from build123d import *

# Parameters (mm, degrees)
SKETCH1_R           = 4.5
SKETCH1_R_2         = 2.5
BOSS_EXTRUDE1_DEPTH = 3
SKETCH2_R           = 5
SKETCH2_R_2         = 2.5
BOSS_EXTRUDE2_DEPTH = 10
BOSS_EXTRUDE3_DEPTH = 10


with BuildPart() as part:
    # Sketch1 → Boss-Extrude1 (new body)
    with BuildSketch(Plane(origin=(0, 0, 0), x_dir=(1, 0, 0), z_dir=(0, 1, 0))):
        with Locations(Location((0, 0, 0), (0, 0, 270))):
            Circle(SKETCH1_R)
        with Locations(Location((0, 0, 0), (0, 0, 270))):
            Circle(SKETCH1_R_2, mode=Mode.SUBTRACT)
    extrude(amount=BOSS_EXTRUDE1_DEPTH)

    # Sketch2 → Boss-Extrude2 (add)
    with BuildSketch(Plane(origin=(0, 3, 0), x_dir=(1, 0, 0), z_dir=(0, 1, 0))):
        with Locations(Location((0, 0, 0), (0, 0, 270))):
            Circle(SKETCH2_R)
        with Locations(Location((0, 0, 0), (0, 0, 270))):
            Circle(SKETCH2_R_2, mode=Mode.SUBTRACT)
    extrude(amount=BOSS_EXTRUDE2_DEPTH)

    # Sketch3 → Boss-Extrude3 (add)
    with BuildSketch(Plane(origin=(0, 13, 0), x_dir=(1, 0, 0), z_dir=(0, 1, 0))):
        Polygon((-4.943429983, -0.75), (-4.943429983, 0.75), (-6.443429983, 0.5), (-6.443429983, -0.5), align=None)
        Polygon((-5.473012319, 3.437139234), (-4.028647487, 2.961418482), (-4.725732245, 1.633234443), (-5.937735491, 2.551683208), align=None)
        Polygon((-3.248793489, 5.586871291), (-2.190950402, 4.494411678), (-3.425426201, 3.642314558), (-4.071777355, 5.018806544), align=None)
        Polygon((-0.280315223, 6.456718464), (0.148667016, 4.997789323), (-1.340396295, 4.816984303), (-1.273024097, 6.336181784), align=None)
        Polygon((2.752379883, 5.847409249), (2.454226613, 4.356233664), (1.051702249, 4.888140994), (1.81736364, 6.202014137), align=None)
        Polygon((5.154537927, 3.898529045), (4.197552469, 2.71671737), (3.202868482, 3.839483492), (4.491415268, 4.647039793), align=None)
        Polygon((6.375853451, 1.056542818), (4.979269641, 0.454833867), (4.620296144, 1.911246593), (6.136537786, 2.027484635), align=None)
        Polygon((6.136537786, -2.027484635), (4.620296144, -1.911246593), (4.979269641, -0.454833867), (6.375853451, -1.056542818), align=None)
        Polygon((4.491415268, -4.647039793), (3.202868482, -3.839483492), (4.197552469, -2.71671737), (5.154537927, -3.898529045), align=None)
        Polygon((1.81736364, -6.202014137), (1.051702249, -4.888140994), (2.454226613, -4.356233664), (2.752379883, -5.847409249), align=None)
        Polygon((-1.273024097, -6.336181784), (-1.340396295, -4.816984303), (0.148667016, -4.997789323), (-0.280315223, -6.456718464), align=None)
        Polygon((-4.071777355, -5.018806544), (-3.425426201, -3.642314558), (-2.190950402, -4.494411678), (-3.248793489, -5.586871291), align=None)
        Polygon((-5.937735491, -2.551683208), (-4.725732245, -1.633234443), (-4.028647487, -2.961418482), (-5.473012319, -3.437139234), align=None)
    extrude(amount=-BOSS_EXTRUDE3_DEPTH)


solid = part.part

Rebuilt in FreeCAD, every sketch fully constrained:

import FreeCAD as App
import Part
import Sketcher
from FreeCAD import Vector
Q = App.Units.Quantity


def add_polygon(sketch, points):
    """Adds a closed chain of lines whose ends are joined by coincident constraints."""
    first, n = sketch.GeometryCount, len(points)
    for a, b in zip(points, points[1:] + points[:1]):
        sketch.addGeometry(Part.LineSegment(App.Vector(*a, 0), App.Vector(*b, 0)), False)
    for i in range(n):
        sketch.addConstraint(Sketcher.Constraint("Coincident", first + i, 2, first + (i + 1) % n, 1))

doc = App.newDocument("Part")
params = doc.addObject("Spreadsheet::Sheet", "Params")
for row, (alias, value) in enumerate([
    ("sketch1_diameter", "9 mm"),
    ("sketch1_diameter2", "5 mm"),
    ("pad1_length", "3 mm"),
    ("sketch2_diameter", "10 mm"),
    ("sketch2_diameter2", "5 mm"),
    ("pad2_length", "10 mm"),
    ("sketch3_height", "1 mm"),
    ("sketch3_length", "1 mm"),
    ("sketch3_height2", "1.5 mm"),
    ("sketch3_length2", "1.5 mm"),
    ("pad3_length", "10 mm"),
], start=1):
    params.set(f"A{row}", alias)
    params.set(f"B{row}", "=" + value)
    params.setAlias(f"B{row}", alias)

body = doc.addObject("PartDesign::Body", "Body")

# Sketch on XZ plane
sketch1 = body.newObject("Sketcher::SketchObject", "Sketch")
sketch1.AttachmentSupport = (doc.getObject("XZ_Plane"), [""])
sketch1.MapMode = "FlatFace"
sketch1.addGeometry(Part.Circle(Vector(0, 0, 0), Vector(0, 0, 1), 4.5), False)
sketch1.addGeometry(Part.Circle(Vector(0, 0, 0), Vector(0, 0, 1), 2.5), False)
sketch1.addConstraint(Sketcher.Constraint("Coincident", 0, 3, -1, 1))
sketch1.addConstraint(Sketcher.Constraint("Coincident", 1, 3, -1, 1))
sketch1.addConstraint(Sketcher.Constraint("Diameter", 0, 9.0))
sketch1.addConstraint(Sketcher.Constraint("Diameter", 1, 5.0))
sketch1.setExpression("Constraints[2]", "Params.sketch1_diameter")
sketch1.setExpression("Constraints[3]", "Params.sketch1_diameter2")
pad1 = body.newObject("PartDesign::Pad", "Pad")
pad1.Profile = sketch1
pad1.setExpression("Length", "Params.pad1_length")
pad1.Reversed = True

# Sketch on XZ plane
sketch2 = body.newObject("Sketcher::SketchObject", "Sketch001")
sketch2.AttachmentSupport = (doc.getObject("XZ_Plane"), [""])
sketch2.MapMode = "FlatFace"
sketch2.AttachmentOffset = App.Placement(Vector(0, 0, -3), App.Rotation())
sketch2.addGeometry(Part.Circle(Vector(0, 0, 0), Vector(0, 0, 1), 5), False)
sketch2.addGeometry(Part.Circle(Vector(0, 0, 0), Vector(0, 0, 1), 2.5), False)
sketch2.addConstraint(Sketcher.Constraint("Coincident", 0, 3, -1, 1))
sketch2.addConstraint(Sketcher.Constraint("Coincident", 1, 3, -1, 1))
sketch2.addConstraint(Sketcher.Constraint("Diameter", 0, 10.0))
sketch2.addConstraint(Sketcher.Constraint("Diameter", 1, 5.0))
sketch2.setExpression("Constraints[2]", "Params.sketch2_diameter")
sketch2.setExpression("Constraints[3]", "Params.sketch2_diameter2")
pad2 = body.newObject("PartDesign::Pad", "Pad001")
pad2.Profile = sketch2
pad2.setExpression("Length", "Params.pad2_length")
pad2.Reversed = True

# Sketch on XZ plane
sketch3 = body.newObject("Sketcher::SketchObject", "Sketch002")
sketch3.AttachmentSupport = (doc.getObject("XZ_Plane"), [""])
sketch3.MapMode = "FlatFace"
sketch3.AttachmentOffset = App.Placement(Vector(0, 0, -13), App.Rotation())
add_polygon(sketch3, [(-4.94343, 0.75), (-4.94343, -0.75), (-6.44343, -0.5), (-6.44343, 0.5)])  # lines 0-3
add_polygon(sketch3, [(-4.028647, -2.961418), (-5.473012, -3.437139), (-5.937735, -2.551683), (-4.725732, -1.633234)])  # lines 4-7
add_polygon(sketch3, [(-2.19095, -4.494412), (-3.248793, -5.586871), (-4.071777, -5.018807), (-3.425426, -3.642315)])  # lines 8-11
add_polygon(sketch3, [(0.148667, -4.997789), (-0.280315, -6.456718), (-1.273024, -6.336182), (-1.340396, -4.816984)])  # lines 12-15
add_polygon(sketch3, [(2.454227, -4.356234), (2.75238, -5.847409), (1.817364, -6.202014), (1.051702, -4.888141)])  # lines 16-19
add_polygon(sketch3, [(4.197552, -2.716717), (5.154538, -3.898529), (4.491415, -4.64704), (3.202868, -3.839483)])  # lines 20-23
add_polygon(sketch3, [(4.97927, -0.454834), (6.375853, -1.056543), (6.136538, -2.027485), (4.620296, -1.911247)])  # lines 24-27
add_polygon(sketch3, [(4.620296, 1.911247), (6.136538, 2.027485), (6.375853, 1.056543), (4.97927, 0.454834)])  # lines 28-31
add_polygon(sketch3, [(3.202868, 3.839483), (4.491415, 4.64704), (5.154538, 3.898529), (4.197552, 2.716717)])  # lines 32-35
add_polygon(sketch3, [(1.051702, 4.888141), (1.817364, 6.202014), (2.75238, 5.847409), (2.454227, 4.356234)])  # lines 36-39
add_polygon(sketch3, [(-1.340396, 4.816984), (-1.273024, 6.336182), (-0.280315, 6.456718), (0.148667, 4.997789)])  # lines 40-43
add_polygon(sketch3, [(-3.425426, 3.642315), (-4.071777, 5.018807), (-3.248793, 5.586871), (-2.19095, 4.494412)])  # lines 44-47
add_polygon(sketch3, [(-4.725732, 1.633234), (-5.937735, 2.551683), (-5.473012, 3.437139), (-4.028647, 2.961418)])  # lines 48-51
sketch3.addConstraint(Sketcher.Constraint("Vertical", 0))
sketch3.addConstraint(Sketcher.Constraint("Vertical", 2))
sketch3.addConstraint(Sketcher.Constraint("Symmetric", 25, 2, 28, 2, -1))
sketch3.addConstraint(Sketcher.Constraint("Symmetric", 24, 2, 29, 2, -1))
sketch3.addConstraint(Sketcher.Constraint("Symmetric", 27, 2, 30, 2, -1))
sketch3.addConstraint(Sketcher.Constraint("Symmetric", 26, 2, 31, 2, -1))
sketch3.addConstraint(Sketcher.Constraint("Symmetric", 21, 2, 32, 2, -1))
sketch3.addConstraint(Sketcher.Constraint("Symmetric", 20, 2, 33, 2, -1))
sketch3.addConstraint(Sketcher.Constraint("Symmetric", 23, 2, 34, 2, -1))
sketch3.addConstraint(Sketcher.Constraint("Symmetric", 22, 2, 35, 2, -1))
sketch3.addConstraint(Sketcher.Constraint("Symmetric", 17, 2, 36, 2, -1))
sketch3.addConstraint(Sketcher.Constraint("Symmetric", 16, 2, 37, 2, -1))
sketch3.addConstraint(Sketcher.Constraint("Symmetric", 19, 2, 38, 2, -1))
sketch3.addConstraint(Sketcher.Constraint("Symmetric", 18, 2, 39, 2, -1))
sketch3.addConstraint(Sketcher.Constraint("Symmetric", 13, 2, 40, 2, -1))
sketch3.addConstraint(Sketcher.Constraint("Symmetric", 12, 2, 41, 2, -1))
sketch3.addConstraint(Sketcher.Constraint("Symmetric", 15, 2, 42, 2, -1))
sketch3.addConstraint(Sketcher.Constraint("Symmetric", 14, 2, 43, 2, -1))
sketch3.addConstraint(Sketcher.Constraint("Symmetric", 9, 2, 44, 2, -1))
sketch3.addConstraint(Sketcher.Constraint("Symmetric", 8, 2, 45, 2, -1))
sketch3.addConstraint(Sketcher.Constraint("Symmetric", 11, 2, 46, 2, -1))
sketch3.addConstraint(Sketcher.Constraint("Symmetric", 10, 2, 47, 2, -1))
sketch3.addConstraint(Sketcher.Constraint("Symmetric", 5, 2, 48, 2, -1))
sketch3.addConstraint(Sketcher.Constraint("Symmetric", 4, 2, 49, 2, -1))
sketch3.addConstraint(Sketcher.Constraint("Symmetric", 7, 2, 50, 2, -1))
sketch3.addConstraint(Sketcher.Constraint("Symmetric", 6, 2, 51, 2, -1))
sketch3.addConstraint(Sketcher.Constraint("Parallel", 5, 7))
sketch3.addConstraint(Sketcher.Constraint("Parallel", 9, 11))
sketch3.addConstraint(Sketcher.Constraint("Parallel", 13, 15))
sketch3.addConstraint(Sketcher.Constraint("Parallel", 17, 19))
sketch3.addConstraint(Sketcher.Constraint("Parallel", 21, 23))
sketch3.addConstraint(Sketcher.Constraint("Parallel", 25, 27))
sketch3.addConstraint(Sketcher.Constraint("Equal", 1, 3))
sketch3.addConstraint(Sketcher.Constraint("Equal", 3, 4))
sketch3.addConstraint(Sketcher.Constraint("Equal", 4, 6))
sketch3.addConstraint(Sketcher.Constraint("Equal", 6, 8))
sketch3.addConstraint(Sketcher.Constraint("Equal", 5, 9))
sketch3.addConstraint(Sketcher.Constraint("Equal", 8, 10))
sketch3.addConstraint(Sketcher.Constraint("Equal", 7, 11))
sketch3.addConstraint(Sketcher.Constraint("Equal", 10, 12))
sketch3.addConstraint(Sketcher.Constraint("Equal", 9, 13))
sketch3.addConstraint(Sketcher.Constraint("Equal", 12, 14))
sketch3.addConstraint(Sketcher.Constraint("Equal", 11, 15))
sketch3.addConstraint(Sketcher.Constraint("Equal", 14, 16))
sketch3.addConstraint(Sketcher.Constraint("Equal", 13, 17))
sketch3.addConstraint(Sketcher.Constraint("Equal", 16, 18))
sketch3.addConstraint(Sketcher.Constraint("Equal", 15, 19))
sketch3.addConstraint(Sketcher.Constraint("Equal", 18, 20))
sketch3.addConstraint(Sketcher.Constraint("Equal", 17, 21))
sketch3.addConstraint(Sketcher.Constraint("Equal", 20, 22))
sketch3.addConstraint(Sketcher.Constraint("Equal", 19, 23))
sketch3.addConstraint(Sketcher.Constraint("Equal", 22, 24))
sketch3.addConstraint(Sketcher.Constraint("Equal", 21, 25))
sketch3.addConstraint(Sketcher.Constraint("Equal", 24, 26))
sketch3.addConstraint(Sketcher.Constraint("Equal", 23, 27))
sketch3.addConstraint(Sketcher.Constraint("DistanceY", 2, 1, 2, 2, 1.0))
sketch3.addConstraint(Sketcher.Constraint("Distance", 5, 1.0))
sketch3.addConstraint(Sketcher.Constraint("DistanceY", 0, 2, 0, 1, 1.5))
sketch3.addConstraint(Sketcher.Constraint("Distance", 7, 1.5))
sketch3.addConstraint(Sketcher.Constraint("DistanceY", 1, 2, -1, 1, 0.5))
sketch3.addConstraint(Sketcher.Constraint("Angle", 4, Q("-161.770015 deg")))
sketch3.addConstraint(Sketcher.Constraint("DistanceX", 1, 2, 0, 2, 1.5))
sketch3.addConstraint(Sketcher.Constraint("DistanceX", 20, 2, 25, 2, 0.982))
sketch3.addConstraint(Sketcher.Constraint("DistanceY", 22, 2, 25, 2, 1.811999))
sketch3.addConstraint(Sketcher.Constraint("DistanceY", 12, 2, 7, 2, 3.4953))
sketch3.addConstraint(Sketcher.Constraint("DistanceX", 14, 2, 18, 2, 2.392099))
sketch3.addConstraint(Sketcher.Constraint("DistanceY", 18, 2, 21, 2, 0.241101))
sketch3.addConstraint(Sketcher.Constraint("DistanceX", 23, 2, 24, 2, 2.178301))
sketch3.addConstraint(Sketcher.Constraint("DistanceY", 35, 2, 40, 2, 2.496698))
sketch3.addConstraint(Sketcher.Constraint("DistanceX", 0, 2, -1, 1, 4.94343))
sketch3.addConstraint(Sketcher.Constraint("DistanceY", 4, 2, -1, 1, 3.437139))
sketch3.addConstraint(Sketcher.Constraint("DistanceY", 8, 2, -1, 1, 5.586871))
sketch3.addConstraint(Sketcher.Constraint("DistanceX", 11, 2, -1, 1, 2.19095))
sketch3.addConstraint(Sketcher.Constraint("DistanceY", 11, 2, -1, 1, 4.494412))
sketch3.addConstraint(Sketcher.Constraint("DistanceY", 13, 2, -1, 1, 6.336182))
sketch3.addConstraint(Sketcher.Constraint("DistanceX", -1, 1, 16, 2, 2.75238))
sketch3.addConstraint(Sketcher.Constraint("DistanceY", 16, 2, -1, 1, 5.847409))
sketch3.addConstraint(Sketcher.Constraint("DistanceY", 18, 2, -1, 1, 4.888141))
sketch3.addConstraint(Sketcher.Constraint("DistanceX", -1, 1, 22, 2, 3.202868))
sketch3.addConstraint(Sketcher.Constraint("DistanceX", 4, 2, 8, 2, 2.224219))
sketch3.setExpression("Constraints[107]", "Params.sketch3_height")
sketch3.setExpression("Constraints[108]", "Params.sketch3_length")
sketch3.setExpression("Constraints[109]", "Params.sketch3_height2")
sketch3.setExpression("Constraints[110]", "Params.sketch3_length2")
pad3 = body.newObject("PartDesign::Pad", "Pad002")
pad3.Profile = sketch3
pad3.setExpression("Length", "Params.pad3_length")

doc.recompute()
